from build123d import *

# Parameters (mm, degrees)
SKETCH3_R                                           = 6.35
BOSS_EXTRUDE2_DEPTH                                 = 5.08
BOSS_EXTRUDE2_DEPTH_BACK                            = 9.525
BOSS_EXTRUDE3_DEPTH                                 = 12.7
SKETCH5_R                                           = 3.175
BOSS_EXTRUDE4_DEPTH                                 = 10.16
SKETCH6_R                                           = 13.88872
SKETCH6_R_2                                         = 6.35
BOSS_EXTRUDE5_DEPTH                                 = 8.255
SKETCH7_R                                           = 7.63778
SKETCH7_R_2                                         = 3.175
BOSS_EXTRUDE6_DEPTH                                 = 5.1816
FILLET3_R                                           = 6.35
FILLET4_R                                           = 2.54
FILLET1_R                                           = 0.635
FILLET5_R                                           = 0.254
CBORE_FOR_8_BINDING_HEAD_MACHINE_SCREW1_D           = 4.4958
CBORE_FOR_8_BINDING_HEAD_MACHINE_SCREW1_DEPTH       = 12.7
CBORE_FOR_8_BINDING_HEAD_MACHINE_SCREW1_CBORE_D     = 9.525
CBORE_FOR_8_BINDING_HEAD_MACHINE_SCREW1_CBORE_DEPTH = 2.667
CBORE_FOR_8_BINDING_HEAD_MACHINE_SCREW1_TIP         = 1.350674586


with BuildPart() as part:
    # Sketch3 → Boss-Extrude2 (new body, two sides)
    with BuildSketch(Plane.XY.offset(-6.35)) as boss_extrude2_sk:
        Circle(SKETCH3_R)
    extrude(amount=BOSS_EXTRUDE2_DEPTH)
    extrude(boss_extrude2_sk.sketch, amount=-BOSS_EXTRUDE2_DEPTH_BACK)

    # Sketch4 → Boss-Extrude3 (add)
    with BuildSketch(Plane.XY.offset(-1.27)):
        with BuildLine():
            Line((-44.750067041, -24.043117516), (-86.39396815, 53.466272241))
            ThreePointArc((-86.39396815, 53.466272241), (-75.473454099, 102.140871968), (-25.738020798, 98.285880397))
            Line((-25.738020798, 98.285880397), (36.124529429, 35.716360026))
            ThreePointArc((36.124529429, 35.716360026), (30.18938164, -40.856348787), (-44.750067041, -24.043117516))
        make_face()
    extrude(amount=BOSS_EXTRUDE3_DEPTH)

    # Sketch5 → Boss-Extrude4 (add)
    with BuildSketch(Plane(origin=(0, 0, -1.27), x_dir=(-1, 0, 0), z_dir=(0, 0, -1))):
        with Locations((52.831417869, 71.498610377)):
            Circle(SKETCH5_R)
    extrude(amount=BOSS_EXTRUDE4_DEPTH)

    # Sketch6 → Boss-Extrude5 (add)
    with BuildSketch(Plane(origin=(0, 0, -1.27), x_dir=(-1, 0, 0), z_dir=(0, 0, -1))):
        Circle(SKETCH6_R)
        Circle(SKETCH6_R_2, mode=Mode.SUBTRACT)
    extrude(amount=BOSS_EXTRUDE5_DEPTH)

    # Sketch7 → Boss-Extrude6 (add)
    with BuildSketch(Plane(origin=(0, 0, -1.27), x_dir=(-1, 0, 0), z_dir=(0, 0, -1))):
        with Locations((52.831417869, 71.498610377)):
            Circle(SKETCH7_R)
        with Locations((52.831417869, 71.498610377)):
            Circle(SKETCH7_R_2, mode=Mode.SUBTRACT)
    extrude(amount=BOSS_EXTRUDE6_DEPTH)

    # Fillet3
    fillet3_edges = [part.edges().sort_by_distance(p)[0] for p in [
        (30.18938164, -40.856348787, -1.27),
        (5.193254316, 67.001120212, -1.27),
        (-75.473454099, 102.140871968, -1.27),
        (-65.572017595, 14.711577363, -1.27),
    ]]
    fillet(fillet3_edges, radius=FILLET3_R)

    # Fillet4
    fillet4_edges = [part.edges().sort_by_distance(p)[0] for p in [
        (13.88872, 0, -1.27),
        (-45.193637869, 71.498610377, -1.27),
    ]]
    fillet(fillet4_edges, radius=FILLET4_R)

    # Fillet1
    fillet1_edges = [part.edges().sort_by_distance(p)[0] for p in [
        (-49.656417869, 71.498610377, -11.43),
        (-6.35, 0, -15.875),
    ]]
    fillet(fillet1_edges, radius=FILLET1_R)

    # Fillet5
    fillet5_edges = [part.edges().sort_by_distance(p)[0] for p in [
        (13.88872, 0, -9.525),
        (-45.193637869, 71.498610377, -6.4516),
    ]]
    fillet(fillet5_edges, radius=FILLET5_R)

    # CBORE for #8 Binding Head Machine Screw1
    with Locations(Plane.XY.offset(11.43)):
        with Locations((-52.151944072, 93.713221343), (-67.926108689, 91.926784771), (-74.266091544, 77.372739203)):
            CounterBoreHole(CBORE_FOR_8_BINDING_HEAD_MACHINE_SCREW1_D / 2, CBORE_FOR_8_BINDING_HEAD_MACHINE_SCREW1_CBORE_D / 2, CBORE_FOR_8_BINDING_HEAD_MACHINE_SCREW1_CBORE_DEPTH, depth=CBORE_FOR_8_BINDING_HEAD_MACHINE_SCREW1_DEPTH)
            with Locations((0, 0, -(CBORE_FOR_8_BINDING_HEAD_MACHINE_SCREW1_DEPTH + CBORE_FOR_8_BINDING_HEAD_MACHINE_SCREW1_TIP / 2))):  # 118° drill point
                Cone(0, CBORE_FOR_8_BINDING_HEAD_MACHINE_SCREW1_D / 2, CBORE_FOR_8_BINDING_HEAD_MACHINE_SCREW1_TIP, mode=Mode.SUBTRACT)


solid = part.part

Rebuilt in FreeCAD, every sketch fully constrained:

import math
import FreeCAD as App
import Part
import Sketcher

V = App.Vector
Q = App.Units.Quantity


def edges_at(feature, points):
    """Names of the edges that pass closest to the given points."""
    edges = feature.Shape.Edges
    near = lambda p: min(range(len(edges)), key=lambda i: edges[i].distToShape(Part.Vertex(*p))[0])
    return sorted({f"Edge{near(p) + 1}" for p in points})

doc = App.newDocument("Part")
body = doc.addObject("PartDesign::Body", "Body")

# Sketch on XY plane
sketch1 = body.newObject("Sketcher::SketchObject", "Sketch")
sketch1.AttachmentSupport = (doc.getObject("XY_Plane"), [""])
sketch1.MapMode = "FlatFace"
sketch1.AttachmentOffset = App.Placement(V(0, 0, -0.25 * 25.4), App.Rotation())
sketch1.addGeometry(Part.Circle(V(0, 0, 0), V(0, 0, 1), 6), False)
sketch1.addConstraint(Sketcher.Constraint("Coincident", 0, 3, -1, 1))
sketch1.addConstraint(Sketcher.Constraint("Diameter", 0, Q("0.5 in")))
pad1 = body.newObject("PartDesign::Pad", "Pad")
pad1.Profile = sketch1
pad1.Type = "TwoLengths"
pad1.Length = Q("0.2 in")
pad1.Length2 = Q("0.375 in")

# Sketch on XY plane
sketch2 = body.newObject("Sketcher::SketchObject", "Sketch001")
sketch2.AttachmentSupport = (doc.getObject("XY_Plane"), [""])
sketch2.MapMode = "FlatFace"
sketch2.AttachmentOffset = App.Placement(V(0, 0, -0.05 * 25.4), App.Rotation())
sketch2.addGeometry(Part.LineSegment(V(-86, 53, 0), V(-45, -24, 0)), False)
sketch2.addGeometry(Part.ArcOfCircle(Part.Circle(V(0, 0, 0), V(0, 0, 1), 51), math.radians(-152), math.radians(45)), False)
sketch2.addGeometry(Part.LineSegment(V(36, 36, 0), V(-26, 98, 0)), False)
sketch2.addGeometry(Part.ArcOfCircle(Part.Circle(V(-53, 71, 0), V(0, 0, 1), 38), math.radians(45), math.radians(208)), False)
sketch2.addConstraint(Sketcher.Constraint("Tangent", 0, 2, 1, 1))
sketch2.addConstraint(Sketcher.Constraint("Tangent", 1, 2, 2, 1))
sketch2.addConstraint(Sketcher.Constraint("Tangent", 2, 2, 3, 1))
sketch2.addConstraint(Sketcher.Constraint("Tangent", 3, 2, 0, 1))
sketch2.addConstraint(Sketcher.Constraint("Coincident", 1, 3, -1, 1))
sketch2.addConstraint(Sketcher.Constraint("Radius", 1, Q("2 in")))
sketch2.addConstraint(Sketcher.Constraint("Radius", 3, Q("1.5 in")))
sketch2.addConstraint(Sketcher.Constraint("DistanceX", 3, 2, 0, 2, Q("41.643901 mm")))
sketch2.addConstraint(Sketcher.Constraint("Distance", 0, Q("87.988181 mm")))
pad2 = body.newObject("PartDesign::Pad", "Pad001")
pad2.Profile = sketch2
pad2.Length = Q("0.5 in")

# Sketch on XY plane
sketch3 = body.newObject("Sketcher::SketchObject", "Sketch002")
sketch3.AttachmentSupport = (doc.getObject("XY_Plane"), [""])
sketch3.MapMode = "FlatFace"
sketch3.AttachmentOffset = App.Placement(V(0, 0, -0.05 * 25.4), App.Rotation())
sketch3.addGeometry(Part.Circle(V(-52.8, 71.5, 0), V(0, 0, 1), 3.2), False)
sketch3.addConstraint(Sketcher.Constraint("Diameter", 0, Q("0.25 in")))
sketch3.addConstraint(Sketcher.Constraint("DistanceY", -1, 1, 0, 3, Q("71.49861 mm")))
sketch3.addConstraint(Sketcher.Constraint("DistanceX", 0, 3, -1, 1, Q("52.831418 mm")))
pad3 = body.newObject("PartDesign::Pad", "Pad002")
pad3.Profile = sketch3
pad3.Length = Q("0.4 in")
pad3.Reversed = True

# Sketch on XY plane
sketch4 = body.newObject("Sketcher::SketchObject", "Sketch003")
sketch4.AttachmentSupport = (doc.getObject("XY_Plane"), [""])
sketch4.MapMode = "FlatFace"
sketch4.AttachmentOffset = App.Placement(V(0, 0, -0.05 * 25.4), App.Rotation())
sketch4.addGeometry(Part.Circle(V(0, 0, 0), V(0, 0, 1), 14), False)
sketch4.addGeometry(Part.Circle(V(0, 0, 0), V(0, 0, 1), 6), False)
sketch4.addConstraint(Sketcher.Constraint("Coincident", 0, 3, -1, 1))
sketch4.addConstraint(Sketcher.Constraint("Coincident", 1, 3, -1, 1))
sketch4.addConstraint(Sketcher.Constraint("Diameter", 1, Q("0.5 in")))
sketch4.addConstraint(Sketcher.Constraint("Diameter", 0, Q("1.0936 in")))
pad4 = body.newObject("PartDesign::Pad", "Pad003")
pad4.Profile = sketch4
pad4.Length = Q("0.325 in")
pad4.Reversed = True

# Sketch on XY plane
sketch5 = body.newObject("Sketcher::SketchObject", "Sketch004")
sketch5.AttachmentSupport = (doc.getObject("XY_Plane"), [""])
sketch5.MapMode = "FlatFace"
sketch5.AttachmentOffset = App.Placement(V(0, 0, -0.05 * 25.4), App.Rotation())
sketch5.addGeometry(Part.Circle(V(-52.8, 71.5, 0), V(0, 0, 1), 7.6), False)
sketch5.addGeometry(Part.Circle(V(-52.8, 71.5, 0), V(0, 0, 1), 3.2), False)
sketch5.addConstraint(Sketcher.Constraint("Coincident", 1, 3, 0, 3))
sketch5.addConstraint(Sketcher.Constraint("Diameter", 1, Q("0.25 in")))
sketch5.addConstraint(Sketcher.Constraint("Diameter", 0, Q("0.6014 in")))
sketch5.addConstraint(Sketcher.Constraint("DistanceY", -1, 1, 0, 3, Q("71.49861 mm")))
sketch5.addConstraint(Sketcher.Constraint("DistanceX", 0, 3, -1, 1, Q("52.831418 mm")))
pad5 = body.newObject("PartDesign::Pad", "Pad004")
pad5.Profile = sketch5
pad5.Length = Q("0.204 in")
pad5.Reversed = True
doc.recompute()

fillet = body.newObject("PartDesign::Fillet", "Fillet")
fillet.Base = (pad5, edges_at(pad5, [
    (30.189, -40.856, -1.27),
    (5.193, 67.001, -1.27),
    (-75.473, 102.141, -1.27),
    (-65.572, 14.712, -1.27),
]))
fillet.Radius = Q("0.25 in")
doc.recompute()

fillet2 = body.newObject("PartDesign::Fillet", "Fillet001")
fillet2.Base = (fillet, edges_at(fillet, [(13.889, 0, -1.27), (-45.194, 71.499, -1.27)]))
fillet2.Radius = Q("0.1 in")
doc.recompute()

fillet3 = body.newObject("PartDesign::Fillet", "Fillet002")
fillet3.Base = (fillet2, edges_at(fillet2, [(-49.656, 71.499, -11.43), (-6.35, 0, -15.875)]))
fillet3.Radius = Q("0.025 in")
doc.recompute()

fillet4 = body.newObject("PartDesign::Fillet", "Fillet003")
fillet4.Base = (fillet3, edges_at(fillet3, [(13.889, 0, -9.525), (-45.194, 71.499, -6.452)]))
fillet4.Radius = Q("0.01 in")

# Sketch on XY plane
sketch6 = body.newObject("Sketcher::SketchObject", "Sketch005")
sketch6.AttachmentSupport = (doc.getObject("XY_Plane"), [""])
sketch6.MapMode = "FlatFace"
sketch6.AttachmentOffset = App.Placement(V(0, 0, 0.45 * 25.4), App.Rotation())
sketch6.addGeometry(Part.Circle(V(-52.2, 93.7, 0), V(0, 0, 1), 2.2), False)
sketch6.addGeometry(Part.Circle(V(-67.9, 91.9, 0), V(0, 0, 1), 2.2), False)
sketch6.addGeometry(Part.Circle(V(-74.3, 77.4, 0), V(0, 0, 1), 2.2), False)
sketch6.addConstraint(Sketcher.Constraint("Equal", 0, 1))
sketch6.addConstraint(Sketcher.Constraint("Equal", 1, 2))
sketch6.addConstraint(Sketcher.Constraint("Diameter", 0, Q("0.177 in")))
sketch6.addConstraint(Sketcher.Constraint("DistanceY", -1, 1, 0, 3, Q("93.713221 mm")))
sketch6.addConstraint(Sketcher.Constraint("DistanceX", 1, 3, -1, 1, Q("67.926109 mm")))
sketch6.addConstraint(Sketcher.Constraint("DistanceX", 2, 3, -1, 1, Q("74.266092 mm")))
sketch6.addConstraint(Sketcher.Constraint("DistanceY", -1, 1, 2, 3, Q("77.372739 mm")))
sketch6.addConstraint(Sketcher.Constraint("DistanceX", 0, 3, -1, 1, Q("52.151944 mm")))
sketch6.addConstraint(Sketcher.Constraint("DistanceY", -1, 1, 1, 3, Q("91.926785 mm")))
doc.recompute()
hole = body.newObject("PartDesign::Hole", "Hole")
hole.Profile = sketch6
hole.ThreadType = "None"
hole.Diameter = Q("0.177 in")
hole.DepthType = "Dimension"
hole.Depth = Q("0.5 in")
hole.DrillPoint = "Angled"
hole.DrillPointAngle = 118
hole.HoleCutType = "Counterbore"
hole.HoleCutDiameter = Q("0.375 in")
hole.HoleCutDepth = Q("0.105 in")

doc.recompute()
